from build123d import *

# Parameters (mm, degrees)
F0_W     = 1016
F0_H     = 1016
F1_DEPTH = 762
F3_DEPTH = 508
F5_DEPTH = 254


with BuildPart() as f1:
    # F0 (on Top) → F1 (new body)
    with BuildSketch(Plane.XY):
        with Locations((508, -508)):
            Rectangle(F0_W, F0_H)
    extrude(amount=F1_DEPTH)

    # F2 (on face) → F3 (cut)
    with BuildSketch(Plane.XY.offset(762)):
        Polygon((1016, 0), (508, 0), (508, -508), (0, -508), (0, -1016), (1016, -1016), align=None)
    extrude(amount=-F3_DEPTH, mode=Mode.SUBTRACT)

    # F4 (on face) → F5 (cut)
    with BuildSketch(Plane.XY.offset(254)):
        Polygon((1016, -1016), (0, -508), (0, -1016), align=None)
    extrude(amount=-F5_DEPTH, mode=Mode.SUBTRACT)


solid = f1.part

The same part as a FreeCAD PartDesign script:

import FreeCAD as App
import Part
import Sketcher
Q = App.Units.Quantity


def add_polygon(sketch, points):
    """Adds a closed chain of lines whose ends are joined by coincident constraints."""
    first, n = sketch.GeometryCount, len(points)
    for a, b in zip(points, points[1:] + points[:1]):
        sketch.addGeometry(Part.LineSegment(App.Vector(*a, 0), App.Vector(*b, 0)), False)
    for i in range(n):
        sketch.addConstraint(Sketcher.Constraint("Coincident", first + i, 2, first + (i + 1) % n, 1))

doc = App.newDocument("Part")
body = doc.addObject("PartDesign::Body", "Body")

# Sketch on XY plane
sketch1 = body.newObject("Sketcher::SketchObject", "Sketch")
sketch1.AttachmentSupport = (doc.getObject("XY_Plane"), [""])
sketch1.MapMode = "FlatFace"
add_polygon(sketch1, [(0, 0), (0, -1016), (1016, -1016), (1016, 0)])  # lines 0-3
sketch1.addConstraint([
    Sketcher.Constraint("Vertical", 0),
    Sketcher.Constraint("Horizontal", 1),
    Sketcher.Constraint("Vertical", 2),
    Sketcher.Constraint("Horizontal", 3),
    Sketcher.Constraint("Coincident", 3, 2, -1, 1),
    Sketcher.Constraint("Equal", 3, 0),
    Sketcher.Constraint("DistanceX", 1, 1, 1, 2, Q("40 in")),
])
pad1 = body.newObject("PartDesign::Pad", "Pad")
pad1.Profile = sketch1
pad1.Length = Q("30 in")

# Sketch on XY plane
sketch2 = body.newObject("Sketcher::SketchObject", "Sketch001")
sketch2.AttachmentSupport = (doc.getObject("XY_Plane"), [""])
sketch2.MapMode = "FlatFace"
sketch2.AttachmentOffset = App.Placement(App.Vector(0, 0, 30 * 25.4), App.Rotation())
add_polygon(sketch2, [(1016, 0), (508, 0), (508, -508), (0, -508), (0, -1016), (1016, -1016)])  # lines 0-5
sketch2.addConstraint([
    Sketcher.Constraint("Horizontal", 0),
    Sketcher.Constraint("Vertical", 1),
    Sketcher.Constraint("Horizontal", 2),
    Sketcher.Constraint("Vertical", 3),
    Sketcher.Constraint("Horizontal", 4),
    Sketcher.Constraint("Vertical", 5),
    Sketcher.Constraint("PointOnObject", 0, 2, -1),
    Sketcher.Constraint("PointOnObject", 2, 2, -2),
    Sketcher.Constraint("Equal", 0, 2),
    Sketcher.Constraint("Equal", 2, 1),
    Sketcher.Constraint("Equal", 1, 3),
    Sketcher.Constraint("DistanceX", 0, 2, 0, 1, Q("20 in")),
])
pocket1 = body.newObject("PartDesign::Pocket", "Pocket")
pocket1.Profile = sketch2
pocket1.Length = Q("20 in")

# Sketch on XY plane
sketch3 = body.newObject("Sketcher::SketchObject", "Sketch002")
sketch3.AttachmentSupport = (doc.getObject("XY_Plane"), [""])
sketch3.MapMode = "FlatFace"
sketch3.AttachmentOffset = App.Placement(App.Vector(0, 0, 10 * 25.4), App.Rotation())
add_polygon(sketch3, [(1016, -1016), (0, -508), (0, -1016)])  # lines 0-2
sketch3.addConstraint([
    Sketcher.Constraint("Vertical", 1),
    Sketcher.Constraint("Horizontal", 2),
    Sketcher.Constraint("PointOnObject", 0, 2, -2),
    Sketcher.Constraint("DistanceX", 2, 1, 2, 2, Q("40 in")),
    Sketcher.Constraint("DistanceY", 1, 2, 1, 1, Q("20 in")),
    Sketcher.Constraint("DistanceY", 0, 2, -1, 1, Q("20 in")),
])
pocket2 = body.newObject("PartDesign::Pocket", "Pocket001")
pocket2.Profile = sketch3
pocket2.Length = Q("10 in")

doc.recompute()
